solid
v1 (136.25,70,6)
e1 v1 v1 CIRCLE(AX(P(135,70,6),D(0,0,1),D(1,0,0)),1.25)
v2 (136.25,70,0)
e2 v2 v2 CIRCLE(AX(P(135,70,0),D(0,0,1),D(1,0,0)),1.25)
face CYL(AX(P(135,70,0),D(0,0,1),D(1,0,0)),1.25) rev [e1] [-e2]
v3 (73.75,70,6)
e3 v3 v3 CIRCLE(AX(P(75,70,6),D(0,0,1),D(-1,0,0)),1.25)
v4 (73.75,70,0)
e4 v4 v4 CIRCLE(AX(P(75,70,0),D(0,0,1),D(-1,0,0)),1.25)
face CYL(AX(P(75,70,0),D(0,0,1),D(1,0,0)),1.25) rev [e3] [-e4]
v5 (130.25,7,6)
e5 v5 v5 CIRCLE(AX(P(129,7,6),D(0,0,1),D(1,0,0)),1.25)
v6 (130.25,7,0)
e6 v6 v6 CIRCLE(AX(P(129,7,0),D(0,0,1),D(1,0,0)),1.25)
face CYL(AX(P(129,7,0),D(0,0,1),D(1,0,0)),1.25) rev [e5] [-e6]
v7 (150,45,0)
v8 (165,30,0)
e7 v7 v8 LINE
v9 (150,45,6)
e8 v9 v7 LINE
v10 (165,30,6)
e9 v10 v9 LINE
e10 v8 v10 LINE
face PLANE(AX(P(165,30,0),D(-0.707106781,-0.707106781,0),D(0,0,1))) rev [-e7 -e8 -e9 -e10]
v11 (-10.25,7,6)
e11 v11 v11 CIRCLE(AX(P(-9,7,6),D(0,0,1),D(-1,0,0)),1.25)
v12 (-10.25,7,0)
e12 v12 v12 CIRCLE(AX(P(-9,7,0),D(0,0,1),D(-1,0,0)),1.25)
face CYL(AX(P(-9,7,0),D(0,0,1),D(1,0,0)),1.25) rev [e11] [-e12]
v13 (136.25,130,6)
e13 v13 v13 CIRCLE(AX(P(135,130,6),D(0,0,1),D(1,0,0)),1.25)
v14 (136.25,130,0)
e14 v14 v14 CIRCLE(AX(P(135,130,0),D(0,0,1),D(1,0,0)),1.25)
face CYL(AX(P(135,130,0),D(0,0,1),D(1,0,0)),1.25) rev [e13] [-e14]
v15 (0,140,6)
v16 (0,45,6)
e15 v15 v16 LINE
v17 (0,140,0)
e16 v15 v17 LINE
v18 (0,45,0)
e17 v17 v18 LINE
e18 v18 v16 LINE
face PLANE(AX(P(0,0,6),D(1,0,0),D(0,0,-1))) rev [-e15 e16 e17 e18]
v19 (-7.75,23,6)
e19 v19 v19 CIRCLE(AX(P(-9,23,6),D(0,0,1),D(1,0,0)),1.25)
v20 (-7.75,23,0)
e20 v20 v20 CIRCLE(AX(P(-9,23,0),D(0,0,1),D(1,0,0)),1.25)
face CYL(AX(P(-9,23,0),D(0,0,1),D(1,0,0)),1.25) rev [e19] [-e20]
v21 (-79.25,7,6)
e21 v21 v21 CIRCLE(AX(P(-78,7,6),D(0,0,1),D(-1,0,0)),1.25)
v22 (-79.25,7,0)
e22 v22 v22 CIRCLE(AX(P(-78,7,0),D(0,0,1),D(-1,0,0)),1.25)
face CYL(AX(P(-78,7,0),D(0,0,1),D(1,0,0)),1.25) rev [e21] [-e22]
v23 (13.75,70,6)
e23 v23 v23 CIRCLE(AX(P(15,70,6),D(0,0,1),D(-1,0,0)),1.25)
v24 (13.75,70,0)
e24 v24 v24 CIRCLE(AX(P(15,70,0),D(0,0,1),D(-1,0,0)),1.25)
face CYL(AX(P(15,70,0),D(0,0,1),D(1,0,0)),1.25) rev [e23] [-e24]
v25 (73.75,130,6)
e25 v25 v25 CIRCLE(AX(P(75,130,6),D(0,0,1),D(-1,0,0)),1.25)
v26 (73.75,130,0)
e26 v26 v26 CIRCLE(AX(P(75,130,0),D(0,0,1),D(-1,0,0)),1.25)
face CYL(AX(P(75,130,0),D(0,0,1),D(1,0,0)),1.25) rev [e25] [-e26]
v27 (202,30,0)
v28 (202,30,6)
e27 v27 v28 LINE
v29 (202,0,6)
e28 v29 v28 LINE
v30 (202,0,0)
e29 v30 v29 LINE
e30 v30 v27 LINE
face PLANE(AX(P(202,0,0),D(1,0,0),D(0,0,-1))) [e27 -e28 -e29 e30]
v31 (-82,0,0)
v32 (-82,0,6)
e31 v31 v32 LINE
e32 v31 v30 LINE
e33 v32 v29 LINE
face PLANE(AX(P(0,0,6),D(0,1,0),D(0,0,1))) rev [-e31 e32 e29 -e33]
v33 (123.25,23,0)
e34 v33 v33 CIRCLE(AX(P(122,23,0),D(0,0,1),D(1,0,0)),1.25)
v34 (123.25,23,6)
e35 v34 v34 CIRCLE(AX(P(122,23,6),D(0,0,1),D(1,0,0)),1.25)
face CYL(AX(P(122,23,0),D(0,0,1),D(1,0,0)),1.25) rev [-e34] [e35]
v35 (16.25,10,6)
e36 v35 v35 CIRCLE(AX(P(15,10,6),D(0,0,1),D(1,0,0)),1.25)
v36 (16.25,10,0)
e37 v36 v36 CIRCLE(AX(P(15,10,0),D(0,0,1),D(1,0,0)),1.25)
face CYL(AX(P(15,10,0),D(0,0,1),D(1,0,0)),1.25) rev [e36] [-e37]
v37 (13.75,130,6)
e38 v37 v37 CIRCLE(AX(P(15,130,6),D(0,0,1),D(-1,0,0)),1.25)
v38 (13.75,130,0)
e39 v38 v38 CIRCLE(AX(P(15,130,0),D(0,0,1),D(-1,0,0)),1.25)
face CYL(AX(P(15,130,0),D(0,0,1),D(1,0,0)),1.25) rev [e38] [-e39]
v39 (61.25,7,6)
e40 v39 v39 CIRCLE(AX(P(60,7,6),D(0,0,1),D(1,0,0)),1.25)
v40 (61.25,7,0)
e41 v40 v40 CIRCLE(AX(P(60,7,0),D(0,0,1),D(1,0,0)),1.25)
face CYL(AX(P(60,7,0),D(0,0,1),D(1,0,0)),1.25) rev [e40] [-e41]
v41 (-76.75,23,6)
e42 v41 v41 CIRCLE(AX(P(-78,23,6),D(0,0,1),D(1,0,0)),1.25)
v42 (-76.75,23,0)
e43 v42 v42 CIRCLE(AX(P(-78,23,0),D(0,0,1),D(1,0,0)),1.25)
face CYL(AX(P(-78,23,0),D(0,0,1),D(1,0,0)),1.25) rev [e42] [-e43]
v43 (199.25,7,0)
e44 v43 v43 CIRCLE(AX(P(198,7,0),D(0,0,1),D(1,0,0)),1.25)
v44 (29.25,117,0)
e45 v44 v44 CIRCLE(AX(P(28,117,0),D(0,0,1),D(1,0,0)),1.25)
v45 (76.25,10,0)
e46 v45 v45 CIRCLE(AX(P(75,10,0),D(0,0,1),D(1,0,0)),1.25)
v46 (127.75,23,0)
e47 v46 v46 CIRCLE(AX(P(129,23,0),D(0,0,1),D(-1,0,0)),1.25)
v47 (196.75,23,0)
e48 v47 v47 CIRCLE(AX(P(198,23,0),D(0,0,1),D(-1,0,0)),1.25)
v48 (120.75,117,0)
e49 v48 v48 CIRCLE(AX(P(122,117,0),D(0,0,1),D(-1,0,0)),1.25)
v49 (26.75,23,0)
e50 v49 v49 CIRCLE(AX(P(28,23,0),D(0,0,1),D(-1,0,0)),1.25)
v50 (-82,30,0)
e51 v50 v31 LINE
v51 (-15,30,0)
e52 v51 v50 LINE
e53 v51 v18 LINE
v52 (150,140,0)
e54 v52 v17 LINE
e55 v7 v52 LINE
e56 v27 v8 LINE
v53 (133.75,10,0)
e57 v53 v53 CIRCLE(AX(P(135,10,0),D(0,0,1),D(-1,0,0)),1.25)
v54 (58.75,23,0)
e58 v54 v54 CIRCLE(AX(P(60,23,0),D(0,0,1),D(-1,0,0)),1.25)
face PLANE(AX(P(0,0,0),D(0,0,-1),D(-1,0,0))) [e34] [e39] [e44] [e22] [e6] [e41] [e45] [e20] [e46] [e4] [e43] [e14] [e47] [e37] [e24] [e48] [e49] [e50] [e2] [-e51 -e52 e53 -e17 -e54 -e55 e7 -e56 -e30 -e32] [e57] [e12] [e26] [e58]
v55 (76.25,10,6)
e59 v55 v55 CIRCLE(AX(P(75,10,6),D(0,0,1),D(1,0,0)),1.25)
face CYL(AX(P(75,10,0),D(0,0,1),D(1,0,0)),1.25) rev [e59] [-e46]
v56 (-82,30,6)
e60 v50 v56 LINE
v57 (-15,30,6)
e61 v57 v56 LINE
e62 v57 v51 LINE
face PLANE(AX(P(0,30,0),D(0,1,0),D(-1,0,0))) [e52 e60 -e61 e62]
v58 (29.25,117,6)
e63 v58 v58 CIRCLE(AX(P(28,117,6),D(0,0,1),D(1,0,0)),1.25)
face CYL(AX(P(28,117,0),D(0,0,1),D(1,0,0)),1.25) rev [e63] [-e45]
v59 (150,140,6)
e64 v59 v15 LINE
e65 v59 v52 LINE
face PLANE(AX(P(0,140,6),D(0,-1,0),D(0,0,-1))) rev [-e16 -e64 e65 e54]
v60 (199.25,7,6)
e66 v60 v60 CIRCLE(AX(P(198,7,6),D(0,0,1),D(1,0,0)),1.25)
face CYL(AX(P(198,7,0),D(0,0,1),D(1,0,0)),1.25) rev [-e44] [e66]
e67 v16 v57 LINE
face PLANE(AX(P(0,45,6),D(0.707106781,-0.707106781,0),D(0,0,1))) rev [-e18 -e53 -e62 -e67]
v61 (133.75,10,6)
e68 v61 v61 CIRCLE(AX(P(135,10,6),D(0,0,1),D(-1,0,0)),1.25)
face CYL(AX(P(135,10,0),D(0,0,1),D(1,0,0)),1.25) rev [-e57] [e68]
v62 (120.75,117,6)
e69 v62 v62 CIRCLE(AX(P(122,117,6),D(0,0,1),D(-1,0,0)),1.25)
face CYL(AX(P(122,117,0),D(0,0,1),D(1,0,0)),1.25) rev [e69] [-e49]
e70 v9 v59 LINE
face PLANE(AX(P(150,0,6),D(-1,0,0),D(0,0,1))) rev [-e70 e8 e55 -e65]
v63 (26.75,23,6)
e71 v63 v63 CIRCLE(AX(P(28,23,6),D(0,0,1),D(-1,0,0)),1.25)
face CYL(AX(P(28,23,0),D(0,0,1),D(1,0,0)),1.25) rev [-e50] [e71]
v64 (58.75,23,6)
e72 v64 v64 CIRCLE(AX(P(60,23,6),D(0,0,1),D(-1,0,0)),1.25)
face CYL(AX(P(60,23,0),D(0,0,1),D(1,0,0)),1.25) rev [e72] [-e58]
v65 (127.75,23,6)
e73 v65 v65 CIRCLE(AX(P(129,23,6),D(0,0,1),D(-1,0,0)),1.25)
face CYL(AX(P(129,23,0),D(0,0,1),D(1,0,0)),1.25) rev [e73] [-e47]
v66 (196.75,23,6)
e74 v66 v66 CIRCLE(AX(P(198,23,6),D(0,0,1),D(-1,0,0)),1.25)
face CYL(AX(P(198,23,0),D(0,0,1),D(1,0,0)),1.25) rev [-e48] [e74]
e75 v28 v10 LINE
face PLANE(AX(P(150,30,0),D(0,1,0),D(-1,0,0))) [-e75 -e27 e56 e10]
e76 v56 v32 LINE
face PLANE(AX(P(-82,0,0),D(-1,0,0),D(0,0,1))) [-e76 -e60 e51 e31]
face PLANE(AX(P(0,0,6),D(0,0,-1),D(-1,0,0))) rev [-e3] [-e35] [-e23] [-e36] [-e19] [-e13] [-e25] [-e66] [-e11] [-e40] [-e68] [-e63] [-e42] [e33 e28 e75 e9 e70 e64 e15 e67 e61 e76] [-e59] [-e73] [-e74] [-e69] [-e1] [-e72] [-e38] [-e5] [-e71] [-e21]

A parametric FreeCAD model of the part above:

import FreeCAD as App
import Part
import Sketcher
from FreeCAD import Vector
Q = App.Units.Quantity


def edges_at(feature, points):
    """Names of the edges that pass closest to the given points."""
    edges = feature.Shape.Edges
    near = lambda p: min(range(len(edges)), key=lambda i: edges[i].distToShape(Part.Vertex(*p))[0])
    return sorted({f"Edge{near(p) + 1}" for p in points})


def add_polygon(sketch, points):
    """Adds a closed chain of lines whose ends are joined by coincident constraints."""
    first, n = sketch.GeometryCount, len(points)
    for a, b in zip(points, points[1:] + points[:1]):
        sketch.addGeometry(Part.LineSegment(App.Vector(*a, 0), App.Vector(*b, 0)), False)
    for i in range(n):
        sketch.addConstraint(Sketcher.Constraint("Coincident", first + i, 2, first + (i + 1) % n, 1))

doc = App.newDocument("Part")
body = doc.addObject("PartDesign::Body", "Body")

sketch1 = body.newObject("Sketcher::SketchObject", "Sketch")
sketch1.AttachmentSupport = (doc.getObject("XY_Plane"), [""])
sketch1.MapMode = "FlatFace"
add_polygon(sketch1, [(0, 140), (0, 0), (150, 0), (150, 140)])
sketch1.addConstraint([
    Sketcher.Constraint("Vertical", 0),
    Sketcher.Constraint("Horizontal", 1),
    Sketcher.Constraint("Vertical", 2),
    Sketcher.Constraint("Horizontal", 3),
    Sketcher.Constraint("Coincident", 0, 2, -1, 1),
    Sketcher.Constraint("DistanceX", 1, 1, 1, 2, Q("150 mm")),
    Sketcher.Constraint("DistanceY", 0, 2, 0, 1, Q("140 mm")),
])
pad1 = body.newObject("PartDesign::Pad", "Pad")
pad1.Profile = sketch1
pad1.Length = 6

sketch2 = body.newObject("Sketcher::SketchObject", "Sketch001")
sketch2.AttachmentSupport = (doc.getObject("XY_Plane"), [""])
sketch2.MapMode = "FlatFace"
sketch2.AttachmentOffset = App.Placement(Vector(0, 0, 6), App.Rotation())
sketch2.addGeometry([
    Part.Circle(Vector(28, 117, 0), Vector(0, 0, 1), 1.2),
    Part.Circle(Vector(122, 117, 0), Vector(0, 0, 1), 1.2),
    Part.Circle(Vector(122, 23, 0), Vector(0, 0, 1), 1.2),
    Part.Circle(Vector(28, 23, 0), Vector(0, 0, 1), 1.2),
], False)
sketch2.addConstraint([
    Sketcher.Constraint("Equal", 0, 1),
    Sketcher.Constraint("Equal", 1, 2),
    Sketcher.Constraint("Equal", 2, 3),
    Sketcher.Constraint("Horizontal", 0, 3, 1, 3),
    Sketcher.Constraint("Horizontal", 2, 3, 3, 3),
    Sketcher.Constraint("Vertical", 1, 3, 2, 3),
    Sketcher.Constraint("Vertical", 0, 3, 3, 3),
    Sketcher.Constraint("Diameter", 0, Q("2.5 mm")),
    Sketcher.Constraint("DistanceX", -1, 1, 0, 3, Q("28 mm")),
    Sketcher.Constraint("DistanceY", -1, 1, 0, 3, Q("117 mm")),
    Sketcher.Constraint("DistanceX", -1, 1, 1, 3, Q("122 mm")),
    Sketcher.Constraint("DistanceY", -1, 1, 2, 3, Q("23 mm")),
])
pocket1 = body.newObject("PartDesign::Pocket", "Pocket")
pocket1.Profile = sketch2
pocket1.Type = "ThroughAll"

sketch3 = body.newObject("Sketcher::SketchObject", "Sketch002")
sketch3.AttachmentSupport = (doc.getObject("XY_Plane"), [""])
sketch3.MapMode = "FlatFace"
sketch3.AttachmentOffset = App.Placement(Vector(0, 0, 6), App.Rotation())
sketch3.addGeometry([
    Part.Circle(Vector(75, 10, 0), Vector(0, 0, 1), 1.2),
    Part.Circle(Vector(15, 10, 0), Vector(0, 0, 1), 1.2),
    Part.Circle(Vector(135, 10, 0), Vector(0, 0, 1), 1.2),
    Part.Circle(Vector(135, 70, 0), Vector(0, 0, 1), 1.2),
    Part.Circle(Vector(15, 70, 0), Vector(0, 0, 1), 1.2),
    Part.Circle(Vector(75, 70, 0), Vector(0, 0, 1), 1.2),
    Part.Circle(Vector(135, 130, 0), Vector(0, 0, 1), 1.2),
    Part.Circle(Vector(15, 130, 0), Vector(0, 0, 1), 1.2),
    Part.Circle(Vector(75, 130, 0), Vector(0, 0, 1), 1.2),
], False)
sketch3.addConstraint([
    Sketcher.Constraint("Equal", 0, 1),
    Sketcher.Constraint("Equal", 1, 2),
    Sketcher.Constraint("Equal", 2, 3),
    Sketcher.Constraint("Equal", 3, 4),
    Sketcher.Constraint("Equal", 4, 5),
    Sketcher.Constraint("Equal", 5, 6),
    Sketcher.Constraint("Equal", 6, 7),
    Sketcher.Constraint("Equal", 7, 8),
    Sketcher.Constraint("Horizontal", 0, 3, 1, 3),
    Sketcher.Constraint("Horizontal", 1, 3, 2, 3),
    Sketcher.Constraint("Horizontal", 3, 3, 4, 3),
    Sketcher.Constraint("Horizontal", 4, 3, 5, 3),
    Sketcher.Constraint("Horizontal", 6, 3, 7, 3),
    Sketcher.Constraint("Horizontal", 7, 3, 8, 3),
    Sketcher.Constraint("Vertical", 2, 3, 3, 3),
    Sketcher.Constraint("Vertical", 1, 3, 4, 3),
    Sketcher.Constraint("Vertical", 0, 3, 5, 3),
    Sketcher.Constraint("Vertical", 3, 3, 6, 3),
    Sketcher.Constraint("Vertical", 4, 3, 7, 3),
    Sketcher.Constraint("Vertical", 5, 3, 8, 3),
    Sketcher.Constraint("Diameter", 0, Q("2.5 mm")),
    Sketcher.Constraint("DistanceX", -1, 1, 0, 3, Q("75 mm")),
    Sketcher.Constraint("DistanceY", -1, 1, 0, 3, Q("10 mm")),
    Sketcher.Constraint("DistanceX", -1, 1, 1, 3, Q("15 mm")),
    Sketcher.Constraint("DistanceX", -1, 1, 2, 3, Q("135 mm")),
    Sketcher.Constraint("DistanceY", -1, 1, 3, 3, Q("70 mm")),
    Sketcher.Constraint("DistanceY", -1, 1, 6, 3, Q("130 mm")),
])
pocket2 = body.newObject("PartDesign::Pocket", "Pocket001")
pocket2.Profile = sketch3
pocket2.Type = "ThroughAll"

sketch4 = body.newObject("Sketcher::SketchObject", "Sketch003")
sketch4.AttachmentSupport = (doc.getObject("XY_Plane"), [""])
sketch4.MapMode = "FlatFace"
sketch4.AttachmentOffset = App.Placement(Vector(0, 0, 6), App.Rotation())
add_polygon(sketch4, [(-82, 30), (-82, 0), (0, 0), (0, 30)])
add_polygon(sketch4, [(150, 30), (150, 0), (202, 0), (202, 30)])
sketch4.addConstraint([
    Sketcher.Constraint("Vertical", 0),
    Sketcher.Constraint("Horizontal", 1),
    Sketcher.Constraint("Vertical", 2),
    Sketcher.Constraint("Horizontal", 3),
    Sketcher.Constraint("Vertical", 4),
    Sketcher.Constraint("Horizontal", 5),
    Sketcher.Constraint("Vertical", 6),
    Sketcher.Constraint("Horizontal", 7),
    Sketcher.Constraint("Coincident", 1, 2, -1, 1),
    Sketcher.Constraint("PointOnObject", 4, 2, -1),
    Sketcher.Constraint("Horizontal", 3, 2, 6, 2),
    Sketcher.Constraint("DistanceX", 1, 1, 1, 2, Q("82 mm")),
    Sketcher.Constraint("DistanceX", 5, 1, 5, 2, Q("52 mm")),
    Sketcher.Constraint("DistanceY", 0, 2, 0, 1, Q("30 mm")),
    Sketcher.Constraint("DistanceX", -1, 1, 4, 2, Q("150 mm")),
])
pad2 = body.newObject("PartDesign::Pad", "Pad001")
pad2.Profile = sketch4
pad2.Length = 6
pad2.Reversed = True

sketch5 = body.newObject("Sketcher::SketchObject", "Sketch004")
sketch5.AttachmentSupport = (doc.getObject("XY_Plane"), [""])
sketch5.MapMode = "FlatFace"
sketch5.AttachmentOffset = App.Placement(Vector(0, 0, 6), App.Rotation())
sketch5.addGeometry([
    Part.Circle(Vector(-78, 23, 0), Vector(0, 0, 1), 1.2),
    Part.Circle(Vector(-78, 7, 0), Vector(0, 0, 1), 1.2),
    Part.Circle(Vector(198, 7, 0), Vector(0, 0, 1), 1.2),
    Part.Circle(Vector(198, 23, 0), Vector(0, 0, 1), 1.2),
    Part.Circle(Vector(60, 7, 0), Vector(0, 0, 1), 1.2),
    Part.Circle(Vector(60, 23, 0), Vector(0, 0, 1), 1.2),
    Part.Circle(Vector(-9, 23, 0), Vector(0, 0, 1), 1.2),
    Part.Circle(Vector(-9, 7, 0), Vector(0, 0, 1), 1.2),
    Part.Circle(Vector(129, 7, 0), Vector(0, 0, 1), 1.2),
    Part.Circle(Vector(129, 23, 0), Vector(0, 0, 1), 1.2),
], False)
sketch5.addConstraint([
    Sketcher.Constraint("Equal", 0, 1),
    Sketcher.Constraint("Equal", 1, 2),
    Sketcher.Constraint("Equal", 2, 3),
    Sketcher.Constraint("Equal", 3, 4),
    Sketcher.Constraint("Equal", 4, 5),
    Sketcher.Constraint("Equal", 5, 6),
    Sketcher.Constraint("Equal", 6, 7),
    Sketcher.Constraint("Equal", 7, 8),
    Sketcher.Constraint("Equal", 8, 9),
    Sketcher.Constraint("Horizontal", 1, 3, 2, 3),
    Sketcher.Constraint("Horizontal", 0, 3, 3, 3),
    Sketcher.Constraint("Horizontal", 2, 3, 4, 3),
    Sketcher.Constraint("Horizontal", 3, 3, 5, 3),
    Sketcher.Constraint("Horizontal", 5, 3, 6, 3),
    Sketcher.Constraint("Horizontal", 4, 3, 7, 3),
    Sketcher.Constraint("Horizontal", 7, 3, 8, 3),
    Sketcher.Constraint("Horizontal", 6, 3, 9, 3),
    Sketcher.Constraint("Vertical", 0, 3, 1, 3),
    Sketcher.Constraint("Vertical", 2, 3, 3, 3),
    Sketcher.Constraint("Vertical", 4, 3, 5, 3),
    Sketcher.Constraint("Vertical", 6, 3, 7, 3),
    Sketcher.Constraint("Vertical", 8, 3, 9, 3),
    Sketcher.Constraint("Diameter", 0, Q("2.5 mm")),
    Sketcher.Constraint("DistanceX", 0, 3, -1, 1, Q("78 mm")),
    Sketcher.Constraint("DistanceY", -1, 1, 0, 3, Q("23 mm")),
    Sketcher.Constraint("DistanceY", -1, 1, 1, 3, Q("7 mm")),
    Sketcher.Constraint("DistanceX", -1, 1, 2, 3, Q("198 mm")),
    Sketcher.Constraint("DistanceX", -1, 1, 4, 3, Q("60 mm")),
    Sketcher.Constraint("DistanceX", 6, 3, -1, 1, Q("9 mm")),
    Sketcher.Constraint("DistanceX", -1, 1, 8, 3, Q("129 mm")),
])
pocket3 = body.newObject("PartDesign::Pocket", "Pocket002")
pocket3.Profile = sketch5
pocket3.Type = "ThroughAll"
doc.recompute()

chamfer = body.newObject("PartDesign::Chamfer", "Chamfer")
chamfer.Base = (pocket3, edges_at(pocket3, [(0, 30, 3), (150, 30, 3)]))
chamfer.Size = 15

doc.recompute()
